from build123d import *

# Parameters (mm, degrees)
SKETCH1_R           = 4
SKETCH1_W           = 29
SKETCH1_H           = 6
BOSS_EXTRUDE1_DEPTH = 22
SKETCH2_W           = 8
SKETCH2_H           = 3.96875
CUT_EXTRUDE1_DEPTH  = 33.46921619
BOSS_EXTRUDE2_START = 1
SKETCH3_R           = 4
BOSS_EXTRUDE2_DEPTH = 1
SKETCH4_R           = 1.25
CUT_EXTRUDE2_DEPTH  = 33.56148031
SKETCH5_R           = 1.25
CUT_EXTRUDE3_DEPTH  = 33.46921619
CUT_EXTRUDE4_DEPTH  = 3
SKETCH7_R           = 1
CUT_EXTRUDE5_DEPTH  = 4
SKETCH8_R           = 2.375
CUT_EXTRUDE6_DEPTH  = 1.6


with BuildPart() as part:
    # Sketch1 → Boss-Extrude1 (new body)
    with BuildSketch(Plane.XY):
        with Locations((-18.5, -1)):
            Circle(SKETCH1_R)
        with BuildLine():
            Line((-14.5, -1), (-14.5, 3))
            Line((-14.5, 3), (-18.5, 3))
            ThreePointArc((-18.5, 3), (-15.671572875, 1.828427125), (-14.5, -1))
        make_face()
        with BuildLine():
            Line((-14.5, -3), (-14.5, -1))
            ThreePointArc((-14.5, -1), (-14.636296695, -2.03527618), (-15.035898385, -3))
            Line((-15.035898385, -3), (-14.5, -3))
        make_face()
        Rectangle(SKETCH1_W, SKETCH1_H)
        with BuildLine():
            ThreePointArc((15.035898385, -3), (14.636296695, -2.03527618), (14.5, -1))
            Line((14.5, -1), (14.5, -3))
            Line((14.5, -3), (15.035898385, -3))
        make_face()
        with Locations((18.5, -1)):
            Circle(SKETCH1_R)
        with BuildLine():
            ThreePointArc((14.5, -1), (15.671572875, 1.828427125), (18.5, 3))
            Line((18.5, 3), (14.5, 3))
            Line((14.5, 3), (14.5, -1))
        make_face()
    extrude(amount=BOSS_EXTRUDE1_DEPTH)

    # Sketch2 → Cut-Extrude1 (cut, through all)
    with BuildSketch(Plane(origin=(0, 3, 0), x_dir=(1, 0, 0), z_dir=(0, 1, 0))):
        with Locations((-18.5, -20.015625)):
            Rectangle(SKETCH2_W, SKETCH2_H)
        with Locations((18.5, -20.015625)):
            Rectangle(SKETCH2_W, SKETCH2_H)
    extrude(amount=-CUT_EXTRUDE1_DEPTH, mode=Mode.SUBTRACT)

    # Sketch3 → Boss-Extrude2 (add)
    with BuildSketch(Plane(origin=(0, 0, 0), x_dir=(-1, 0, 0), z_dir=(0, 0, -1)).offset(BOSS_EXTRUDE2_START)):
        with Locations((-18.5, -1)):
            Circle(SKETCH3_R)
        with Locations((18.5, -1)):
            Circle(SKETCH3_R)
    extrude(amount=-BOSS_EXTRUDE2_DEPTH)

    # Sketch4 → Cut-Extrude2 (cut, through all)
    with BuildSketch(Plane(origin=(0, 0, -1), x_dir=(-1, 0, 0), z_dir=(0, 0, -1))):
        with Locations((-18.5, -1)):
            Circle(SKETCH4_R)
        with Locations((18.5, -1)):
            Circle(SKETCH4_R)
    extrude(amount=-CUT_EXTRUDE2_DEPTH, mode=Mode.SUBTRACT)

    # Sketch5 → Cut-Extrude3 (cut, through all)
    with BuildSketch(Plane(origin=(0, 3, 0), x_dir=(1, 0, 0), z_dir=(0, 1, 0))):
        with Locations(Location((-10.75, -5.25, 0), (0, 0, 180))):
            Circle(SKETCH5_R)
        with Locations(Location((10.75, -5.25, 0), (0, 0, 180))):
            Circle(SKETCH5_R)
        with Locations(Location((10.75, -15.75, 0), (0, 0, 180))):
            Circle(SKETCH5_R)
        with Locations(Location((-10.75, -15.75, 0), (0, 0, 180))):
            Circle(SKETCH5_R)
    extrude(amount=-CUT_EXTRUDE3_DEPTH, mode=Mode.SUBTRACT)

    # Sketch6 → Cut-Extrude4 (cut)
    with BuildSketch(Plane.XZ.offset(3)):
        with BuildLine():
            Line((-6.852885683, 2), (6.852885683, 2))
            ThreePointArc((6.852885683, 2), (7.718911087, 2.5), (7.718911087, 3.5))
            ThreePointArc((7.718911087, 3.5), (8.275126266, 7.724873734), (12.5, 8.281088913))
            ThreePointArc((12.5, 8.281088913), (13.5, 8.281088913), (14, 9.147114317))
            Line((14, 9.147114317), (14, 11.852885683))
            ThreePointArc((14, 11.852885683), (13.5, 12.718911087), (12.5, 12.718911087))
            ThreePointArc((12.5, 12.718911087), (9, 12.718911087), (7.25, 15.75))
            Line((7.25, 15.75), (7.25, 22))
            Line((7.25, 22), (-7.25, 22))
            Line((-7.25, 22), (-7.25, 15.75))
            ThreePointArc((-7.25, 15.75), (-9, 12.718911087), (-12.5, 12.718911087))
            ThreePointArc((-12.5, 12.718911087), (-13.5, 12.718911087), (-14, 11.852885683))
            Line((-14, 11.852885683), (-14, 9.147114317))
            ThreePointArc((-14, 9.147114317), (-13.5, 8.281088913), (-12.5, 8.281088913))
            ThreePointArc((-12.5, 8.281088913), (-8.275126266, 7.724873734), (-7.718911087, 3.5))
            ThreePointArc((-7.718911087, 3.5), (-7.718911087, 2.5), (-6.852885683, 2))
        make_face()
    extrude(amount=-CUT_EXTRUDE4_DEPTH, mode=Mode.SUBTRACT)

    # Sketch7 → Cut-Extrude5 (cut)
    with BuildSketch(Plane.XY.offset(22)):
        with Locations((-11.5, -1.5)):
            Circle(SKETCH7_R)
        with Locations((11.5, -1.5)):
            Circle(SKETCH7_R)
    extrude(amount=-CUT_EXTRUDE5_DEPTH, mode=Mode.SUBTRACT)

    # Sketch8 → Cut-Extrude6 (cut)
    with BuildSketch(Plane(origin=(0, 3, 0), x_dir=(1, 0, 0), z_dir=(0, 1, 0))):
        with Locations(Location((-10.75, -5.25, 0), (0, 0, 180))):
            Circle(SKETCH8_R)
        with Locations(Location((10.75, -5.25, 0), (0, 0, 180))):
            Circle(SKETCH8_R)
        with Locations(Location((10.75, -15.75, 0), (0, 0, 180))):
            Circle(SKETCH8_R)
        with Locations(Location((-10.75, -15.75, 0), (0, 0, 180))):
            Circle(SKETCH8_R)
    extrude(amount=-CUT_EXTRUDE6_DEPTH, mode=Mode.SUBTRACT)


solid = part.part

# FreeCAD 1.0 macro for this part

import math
import FreeCAD as App
import Part
import Sketcher

V = App.Vector


def add_polygon(sketch, points):
    """Adds a closed chain of lines whose ends are joined by coincident constraints."""
    first, n = sketch.GeometryCount, len(points)
    for a, b in zip(points, points[1:] + points[:1]):
        sketch.addGeometry(Part.LineSegment(App.Vector(*a, 0), App.Vector(*b, 0)), False)
    for i in range(n):
        sketch.addConstraint(Sketcher.Constraint("Coincident", first + i, 2, first + (i + 1) % n, 1))

doc = App.newDocument("Part")
body = doc.addObject("PartDesign::Body", "Body")

sketch1 = body.newObject("Sketcher::SketchObject", "Sketch")
sketch1.AttachmentSupport = (doc.getObject("XY_Plane"), [""])
sketch1.MapMode = "FlatFace"
sketch1.addGeometry([
    Part.ArcOfCircle(Part.Circle(V(-18.5, -1, 0), V(0, 0, 1), 4), math.radians(90), math.radians(330)),
    Part.LineSegment(V(-15, -3, 0), V(15, -3, 0)),
    Part.ArcOfCircle(Part.Circle(V(18.5, -1, 0), V(0, 0, 1), 4), math.radians(-150), math.radians(90)),
    Part.LineSegment(V(18.5, 3, 0), V(-18.5, 3, 0)),
], False)
sketch1.addConstraint([
    Sketcher.Constraint("Coincident", 0, 2, 1, 1),
    Sketcher.Constraint("Coincident", 1, 2, 2, 1),
    Sketcher.Constraint("Tangent", 2, 2, 3, 1),
    Sketcher.Constraint("Tangent", 3, 2, 0, 1),
    Sketcher.Constraint("Horizontal", 1),
    Sketcher.Constraint("Horizontal", 3),
    Sketcher.Constraint("Equal", 0, 2),
    Sketcher.Constraint("Radius", 0, 4.0),
    Sketcher.Constraint("DistanceX", 3, 2, 3, 1, 37.0),
    Sketcher.Constraint("DistanceY", 0, 3, -1, 1, 1.0),
    Sketcher.Constraint("DistanceY", 0, 2, -1, 1, 3.0),
    Sketcher.Constraint("DistanceX", 0, 3, -1, 1, 18.5),
])
pad1 = body.newObject("PartDesign::Pad", "Pad")
pad1.Profile = sketch1
pad1.Length = 22

sketch2 = body.newObject("Sketcher::SketchObject", "Sketch001")
sketch2.AttachmentSupport = (doc.getObject("XZ_Plane"), [""])
sketch2.MapMode = "FlatFace"
sketch2.AttachmentOffset = App.Placement(V(0, 0, -3), App.Rotation())
add_polygon(sketch2, [(-22.5, 18), (-22.5, 22), (-14.5, 22), (-14.5, 18)])
add_polygon(sketch2, [(14.5, 18), (14.5, 22), (22.5, 22), (22.5, 18)])
sketch2.addConstraint([
    Sketcher.Constraint("Vertical", 0),
    Sketcher.Constraint("Horizontal", 1),
    Sketcher.Constraint("Vertical", 2),
    Sketcher.Constraint("Horizontal", 3),
    Sketcher.Constraint("Vertical", 4),
    Sketcher.Constraint("Horizontal", 5),
    Sketcher.Constraint("Vertical", 6),
    Sketcher.Constraint("Horizontal", 7),
    Sketcher.Constraint("Symmetric", 1, 2, 4, 2, -2),
    Sketcher.Constraint("Symmetric", 3, 2, 6, 2, -2),
    Sketcher.Constraint("DistanceX", 1, 1, 1, 2, 8.0),
    Sketcher.Constraint("DistanceY", -1, 1, 0, 2, 22.0),
    Sketcher.Constraint("DistanceX", 1, 2, 4, 2, 29.0),
    Sketcher.Constraint("DistanceY", 0, 1, 0, 2, 3.96875),
])
pocket1 = body.newObject("PartDesign::Pocket", "Pocket")
pocket1.Profile = sketch2
pocket1.Type = "ThroughAll"
pocket1.Reversed = True

sketch3 = body.newObject("Sketcher::SketchObject", "Sketch002")
sketch3.AttachmentSupport = (doc.getObject("XY_Plane"), [""])
sketch3.MapMode = "FlatFace"
sketch3.AttachmentOffset = App.Placement(V(0, 0, -1), App.Rotation())
sketch3.addGeometry([
    Part.Circle(V(18.5, -1, 0), V(0, 0, 1), 4),
    Part.Circle(V(-18.5, -1, 0), V(0, 0, 1), 4),
], False)
sketch3.addConstraint([
    Sketcher.Constraint("Equal", 0, 1),
    Sketcher.Constraint("Symmetric", 0, 3, 1, 3, -2),
    Sketcher.Constraint("Diameter", 0, 8.0),
    Sketcher.Constraint("DistanceY", 0, 3, -1, 1, 1.0),
    Sketcher.Constraint("DistanceX", 1, 3, 0, 3, 37.0),
])
pad2 = body.newObject("PartDesign::Pad", "Pad001")
pad2.Profile = sketch3
pad2.Length = 1

sketch4 = body.newObject("Sketcher::SketchObject", "Sketch003")
sketch4.AttachmentSupport = (doc.getObject("XY_Plane"), [""])
sketch4.MapMode = "FlatFace"
sketch4.AttachmentOffset = App.Placement(V(0, 0, -1), App.Rotation())
sketch4.addGeometry([
    Part.Circle(V(18.5, -1, 0), V(0, 0, 1), 1.2),
    Part.Circle(V(-18.5, -1, 0), V(0, 0, 1), 1.2),
], False)
sketch4.addConstraint([
    Sketcher.Constraint("Equal", 0, 1),
    Sketcher.Constraint("Symmetric", 0, 3, 1, 3, -2),
    Sketcher.Constraint("Diameter", 0, 2.5),
    Sketcher.Constraint("DistanceY", 0, 3, -1, 1, 1.0),
    Sketcher.Constraint("DistanceX", 1, 3, 0, 3, 37.0),
])
pocket2 = body.newObject("PartDesign::Pocket", "Pocket001")
pocket2.Profile = sketch4
pocket2.Type = "ThroughAll"
pocket2.Reversed = True

sketch5 = body.newObject("Sketcher::SketchObject", "Sketch004")
sketch5.AttachmentSupport = (doc.getObject("XZ_Plane"), [""])
sketch5.MapMode = "FlatFace"
sketch5.AttachmentOffset = App.Placement(V(0, 0, -3), App.Rotation())
sketch5.addGeometry([
    Part.Circle(V(-10.8, 5.2, 0), V(0, 0, 1), 1.2),
    Part.Circle(V(10.8, 5.2, 0), V(0, 0, 1), 1.2),
    Part.Circle(V(10.8, 15.8, 0), V(0, 0, 1), 1.2),
    Part.Circle(V(-10.8, 15.8, 0), V(0, 0, 1), 1.2),
], False)
sketch5.addConstraint([
    Sketcher.Constraint("Equal", 0, 1),
    Sketcher.Constraint("Equal", 1, 2),
    Sketcher.Constraint("Equal", 2, 3),
    Sketcher.Constraint("Symmetric", 0, 3, 1, 3, -2),
    Sketcher.Constraint("Symmetric", 2, 3, 3, 3, -2),
    Sketcher.Constraint("Vertical", 1, 3, 2, 3),
    Sketcher.Constraint("Diameter", 0, 2.5),
    Sketcher.Constraint("DistanceX", 0, 3, 1, 3, 21.5),
    Sketcher.Constraint("DistanceY", 1, 3, 2, 3, 10.5),
    Sketcher.Constraint("DistanceY", -1, 1, 0, 3, 5.25),
])
pocket3 = body.newObject("PartDesign::Pocket", "Pocket002")
pocket3.Profile = sketch5
pocket3.Type = "ThroughAll"
pocket3.Reversed = True

sketch6 = body.newObject("Sketcher::SketchObject", "Sketch005")
sketch6.AttachmentSupport = (doc.getObject("XZ_Plane"), [""])
sketch6.MapMode = "FlatFace"
sketch6.AttachmentOffset = App.Placement(V(0, 0, 3), App.Rotation())
sketch6.addGeometry([
    Part.LineSegment(V(-6.9, 2, 0), V(6.9, 2, 0)),
    Part.ArcOfCircle(Part.Circle(V(6.9, 3, 0), V(0, 0, 1), 1), math.radians(-90), math.radians(30)),
    Part.ArcOfCircle(Part.Circle(V(10.8, 5.2, 0), V(0, 0, 1), 3.5), math.radians(60), math.radians(210)),
    Part.ArcOfCircle(Part.Circle(V(13, 9.1, 0), V(0, 0, 1), 1), math.radians(-120), math.radians(0)),
    Part.LineSegment(V(14, 9.1, 0), V(14, 11.9, 0)),
    Part.ArcOfCircle(Part.Circle(V(13, 11.9, 0), V(0, 0, 1), 1), math.radians(0), math.radians(120)),
    Part.ArcOfCircle(Part.Circle(V(10.8, 15.8, 0), V(0, 0, 1), 3.5), math.radians(180), math.radians(300)),
    Part.LineSegment(V(7.2, 15.8, 0), V(7.2, 22, 0)),
    Part.LineSegment(V(7.2, 22, 0), V(-7.2, 22, 0)),
    Part.LineSegment(V(-7.2, 22, 0), V(-7.2, 15.8, 0)),
    Part.ArcOfCircle(Part.Circle(V(-10.8, 15.8, 0), V(0, 0, 1), 3.5), math.radians(-120), math.radians(0)),
    Part.ArcOfCircle(Part.Circle(V(-13, 11.9, 0), V(0, 0, 1), 1), math.radians(60), math.radians(180)),
    Part.LineSegment(V(-14, 11.9, 0), V(-14, 9.1, 0)),
    Part.ArcOfCircle(Part.Circle(V(-13, 9.1, 0), V(0, 0, 1), 1), math.radians(180), math.radians(300)),
    Part.ArcOfCircle(Part.Circle(V(-10.8, 5.2, 0), V(0, 0, 1), 3.5), math.radians(-30), math.radians(120)),
    Part.ArcOfCircle(Part.Circle(V(-6.9, 3, 0), V(0, 0, 1), 1), math.radians(150), math.radians(270)),
], False)
sketch6.addConstraint([
    Sketcher.Constraint("Tangent", 0, 2, 1, 1),
    Sketcher.Constraint("Tangent", 1, 2, 2, 2),
    Sketcher.Constraint("Tangent", 2, 1, 3, 1),
    Sketcher.Constraint("Tangent", 3, 2, 4, 1),
    Sketcher.Constraint("Tangent", 4, 2, 5, 1),
    Sketcher.Constraint("Tangent", 5, 2, 6, 2),
    Sketcher.Constraint("Tangent", 6, 1, 7, 1),
    Sketcher.Constraint("Coincident", 7, 2, 8, 1),
    Sketcher.Constraint("Coincident", 8, 2, 9, 1),
    Sketcher.Constraint("Tangent", 9, 2, 10, 2),
    Sketcher.Constraint("Tangent", 10, 1, 11, 1),
    Sketcher.Constraint("Tangent", 11, 2, 12, 1),
    Sketcher.Constraint("Tangent", 12, 2, 13, 1),
    Sketcher.Constraint("Tangent", 13, 2, 14, 2),
    Sketcher.Constraint("Tangent", 14, 1, 15, 1),
    Sketcher.Constraint("Tangent", 15, 2, 0, 1),
    Sketcher.Constraint("Horizontal", 0),
    Sketcher.Constraint("Vertical", 4),
    Sketcher.Constraint("Vertical", 7),
    Sketcher.Constraint("Horizontal", 8),
    Sketcher.Constraint("Vertical", 9),
    Sketcher.Constraint("Vertical", 12),
    Sketcher.Constraint("Equal", 1, 3),
    Sketcher.Constraint("Equal", 3, 5),
    Sketcher.Constraint("Equal", 2, 6),
    Sketcher.Constraint("Equal", 6, 10),
    Sketcher.Constraint("Equal", 5, 11),
    Sketcher.Constraint("Equal", 11, 13),
    Sketcher.Constraint("Equal", 10, 14),
    Sketcher.Constraint("Equal", 13, 15),
    Sketcher.Constraint("Symmetric", 6, 3, 10, 3, -2),
    Sketcher.Constraint("Symmetric", 3, 3, 13, 3, -2),
    Sketcher.Constraint("Horizontal", 2, 3, 14, 3),
    Sketcher.Constraint("Vertical", 2, 3, 6, 3),
    Sketcher.Constraint("Radius", 1, 1.0),
    Sketcher.Constraint("Radius", 2, 3.5),
    Sketcher.Constraint("DistanceX", 8, 2, 8, 1, 14.5),
    Sketcher.Constraint("DistanceY", -1, 1, 1, 3, 3.0),
    Sketcher.Constraint("DistanceX", -1, 1, 3, 3, 13.0),
    Sketcher.Constraint("DistanceY", -1, 1, 7, 2, 22.0),
    Sketcher.Constraint("DistanceY", 7, 1, 7, 2, 6.25),
    Sketcher.Constraint("DistanceY", -1, 1, 1, 2, 3.5),
])
pocket4 = body.newObject("PartDesign::Pocket", "Pocket003")
pocket4.Profile = sketch6
pocket4.Length = 3

sketch7 = body.newObject("Sketcher::SketchObject", "Sketch006")
sketch7.AttachmentSupport = (doc.getObject("XY_Plane"), [""])
sketch7.MapMode = "FlatFace"
sketch7.AttachmentOffset = App.Placement(V(0, 0, 22), App.Rotation())
sketch7.addGeometry([
    Part.Circle(V(-11.5, -1.5, 0), V(0, 0, 1), 1),
    Part.Circle(V(11.5, -1.5, 0), V(0, 0, 1), 1),
], False)
sketch7.addConstraint([
    Sketcher.Constraint("Equal", 0, 1),
    Sketcher.Constraint("Symmetric", 0, 3, 1, 3, -2),
    Sketcher.Constraint("Diameter", 0, 2.0),
    Sketcher.Constraint("DistanceX", 0, 3, 1, 3, 23.0),
    Sketcher.Constraint("DistanceY", 0, 3, -1, 1, 1.5),
])
pocket5 = body.newObject("PartDesign::Pocket", "Pocket004")
pocket5.Profile = sketch7
pocket5.Length = 4

sketch8 = body.newObject("Sketcher::SketchObject", "Sketch007")
sketch8.AttachmentSupport = (doc.getObject("XZ_Plane"), [""])
sketch8.MapMode = "FlatFace"
sketch8.AttachmentOffset = App.Placement(V(0, 0, -3), App.Rotation())
sketch8.addGeometry([
    Part.Circle(V(-10.8, 5.2, 0), V(0, 0, 1), 2.4),
    Part.Circle(V(10.8, 5.2, 0), V(0, 0, 1), 2.4),
    Part.Circle(V(10.8, 15.8, 0), V(0, 0, 1), 2.4),
    Part.Circle(V(-10.8, 15.8, 0), V(0, 0, 1), 2.4),
], False)
sketch8.addConstraint([
    Sketcher.Constraint("Equal", 0, 1),
    Sketcher.Constraint("Equal", 1, 2),
    Sketcher.Constraint("Equal", 2, 3),
    Sketcher.Constraint("Symmetric", 0, 3, 1, 3, -2),
    Sketcher.Constraint("Symmetric", 2, 3, 3, 3, -2),
    Sketcher.Constraint("Vertical", 1, 3, 2, 3),
    Sketcher.Constraint("Diameter", 0, 4.75),
    Sketcher.Constraint("DistanceX", 0, 3, 1, 3, 21.5),
    Sketcher.Constraint("DistanceY", 1, 3, 2, 3, 10.5),
    Sketcher.Constraint("DistanceY", -1, 1, 0, 3, 5.25),
])
pocket6 = body.newObject("PartDesign::Pocket", "Pocket005")
pocket6.Profile = sketch8
pocket6.Length = 1.6
pocket6.Reversed = True

doc.recompute()
